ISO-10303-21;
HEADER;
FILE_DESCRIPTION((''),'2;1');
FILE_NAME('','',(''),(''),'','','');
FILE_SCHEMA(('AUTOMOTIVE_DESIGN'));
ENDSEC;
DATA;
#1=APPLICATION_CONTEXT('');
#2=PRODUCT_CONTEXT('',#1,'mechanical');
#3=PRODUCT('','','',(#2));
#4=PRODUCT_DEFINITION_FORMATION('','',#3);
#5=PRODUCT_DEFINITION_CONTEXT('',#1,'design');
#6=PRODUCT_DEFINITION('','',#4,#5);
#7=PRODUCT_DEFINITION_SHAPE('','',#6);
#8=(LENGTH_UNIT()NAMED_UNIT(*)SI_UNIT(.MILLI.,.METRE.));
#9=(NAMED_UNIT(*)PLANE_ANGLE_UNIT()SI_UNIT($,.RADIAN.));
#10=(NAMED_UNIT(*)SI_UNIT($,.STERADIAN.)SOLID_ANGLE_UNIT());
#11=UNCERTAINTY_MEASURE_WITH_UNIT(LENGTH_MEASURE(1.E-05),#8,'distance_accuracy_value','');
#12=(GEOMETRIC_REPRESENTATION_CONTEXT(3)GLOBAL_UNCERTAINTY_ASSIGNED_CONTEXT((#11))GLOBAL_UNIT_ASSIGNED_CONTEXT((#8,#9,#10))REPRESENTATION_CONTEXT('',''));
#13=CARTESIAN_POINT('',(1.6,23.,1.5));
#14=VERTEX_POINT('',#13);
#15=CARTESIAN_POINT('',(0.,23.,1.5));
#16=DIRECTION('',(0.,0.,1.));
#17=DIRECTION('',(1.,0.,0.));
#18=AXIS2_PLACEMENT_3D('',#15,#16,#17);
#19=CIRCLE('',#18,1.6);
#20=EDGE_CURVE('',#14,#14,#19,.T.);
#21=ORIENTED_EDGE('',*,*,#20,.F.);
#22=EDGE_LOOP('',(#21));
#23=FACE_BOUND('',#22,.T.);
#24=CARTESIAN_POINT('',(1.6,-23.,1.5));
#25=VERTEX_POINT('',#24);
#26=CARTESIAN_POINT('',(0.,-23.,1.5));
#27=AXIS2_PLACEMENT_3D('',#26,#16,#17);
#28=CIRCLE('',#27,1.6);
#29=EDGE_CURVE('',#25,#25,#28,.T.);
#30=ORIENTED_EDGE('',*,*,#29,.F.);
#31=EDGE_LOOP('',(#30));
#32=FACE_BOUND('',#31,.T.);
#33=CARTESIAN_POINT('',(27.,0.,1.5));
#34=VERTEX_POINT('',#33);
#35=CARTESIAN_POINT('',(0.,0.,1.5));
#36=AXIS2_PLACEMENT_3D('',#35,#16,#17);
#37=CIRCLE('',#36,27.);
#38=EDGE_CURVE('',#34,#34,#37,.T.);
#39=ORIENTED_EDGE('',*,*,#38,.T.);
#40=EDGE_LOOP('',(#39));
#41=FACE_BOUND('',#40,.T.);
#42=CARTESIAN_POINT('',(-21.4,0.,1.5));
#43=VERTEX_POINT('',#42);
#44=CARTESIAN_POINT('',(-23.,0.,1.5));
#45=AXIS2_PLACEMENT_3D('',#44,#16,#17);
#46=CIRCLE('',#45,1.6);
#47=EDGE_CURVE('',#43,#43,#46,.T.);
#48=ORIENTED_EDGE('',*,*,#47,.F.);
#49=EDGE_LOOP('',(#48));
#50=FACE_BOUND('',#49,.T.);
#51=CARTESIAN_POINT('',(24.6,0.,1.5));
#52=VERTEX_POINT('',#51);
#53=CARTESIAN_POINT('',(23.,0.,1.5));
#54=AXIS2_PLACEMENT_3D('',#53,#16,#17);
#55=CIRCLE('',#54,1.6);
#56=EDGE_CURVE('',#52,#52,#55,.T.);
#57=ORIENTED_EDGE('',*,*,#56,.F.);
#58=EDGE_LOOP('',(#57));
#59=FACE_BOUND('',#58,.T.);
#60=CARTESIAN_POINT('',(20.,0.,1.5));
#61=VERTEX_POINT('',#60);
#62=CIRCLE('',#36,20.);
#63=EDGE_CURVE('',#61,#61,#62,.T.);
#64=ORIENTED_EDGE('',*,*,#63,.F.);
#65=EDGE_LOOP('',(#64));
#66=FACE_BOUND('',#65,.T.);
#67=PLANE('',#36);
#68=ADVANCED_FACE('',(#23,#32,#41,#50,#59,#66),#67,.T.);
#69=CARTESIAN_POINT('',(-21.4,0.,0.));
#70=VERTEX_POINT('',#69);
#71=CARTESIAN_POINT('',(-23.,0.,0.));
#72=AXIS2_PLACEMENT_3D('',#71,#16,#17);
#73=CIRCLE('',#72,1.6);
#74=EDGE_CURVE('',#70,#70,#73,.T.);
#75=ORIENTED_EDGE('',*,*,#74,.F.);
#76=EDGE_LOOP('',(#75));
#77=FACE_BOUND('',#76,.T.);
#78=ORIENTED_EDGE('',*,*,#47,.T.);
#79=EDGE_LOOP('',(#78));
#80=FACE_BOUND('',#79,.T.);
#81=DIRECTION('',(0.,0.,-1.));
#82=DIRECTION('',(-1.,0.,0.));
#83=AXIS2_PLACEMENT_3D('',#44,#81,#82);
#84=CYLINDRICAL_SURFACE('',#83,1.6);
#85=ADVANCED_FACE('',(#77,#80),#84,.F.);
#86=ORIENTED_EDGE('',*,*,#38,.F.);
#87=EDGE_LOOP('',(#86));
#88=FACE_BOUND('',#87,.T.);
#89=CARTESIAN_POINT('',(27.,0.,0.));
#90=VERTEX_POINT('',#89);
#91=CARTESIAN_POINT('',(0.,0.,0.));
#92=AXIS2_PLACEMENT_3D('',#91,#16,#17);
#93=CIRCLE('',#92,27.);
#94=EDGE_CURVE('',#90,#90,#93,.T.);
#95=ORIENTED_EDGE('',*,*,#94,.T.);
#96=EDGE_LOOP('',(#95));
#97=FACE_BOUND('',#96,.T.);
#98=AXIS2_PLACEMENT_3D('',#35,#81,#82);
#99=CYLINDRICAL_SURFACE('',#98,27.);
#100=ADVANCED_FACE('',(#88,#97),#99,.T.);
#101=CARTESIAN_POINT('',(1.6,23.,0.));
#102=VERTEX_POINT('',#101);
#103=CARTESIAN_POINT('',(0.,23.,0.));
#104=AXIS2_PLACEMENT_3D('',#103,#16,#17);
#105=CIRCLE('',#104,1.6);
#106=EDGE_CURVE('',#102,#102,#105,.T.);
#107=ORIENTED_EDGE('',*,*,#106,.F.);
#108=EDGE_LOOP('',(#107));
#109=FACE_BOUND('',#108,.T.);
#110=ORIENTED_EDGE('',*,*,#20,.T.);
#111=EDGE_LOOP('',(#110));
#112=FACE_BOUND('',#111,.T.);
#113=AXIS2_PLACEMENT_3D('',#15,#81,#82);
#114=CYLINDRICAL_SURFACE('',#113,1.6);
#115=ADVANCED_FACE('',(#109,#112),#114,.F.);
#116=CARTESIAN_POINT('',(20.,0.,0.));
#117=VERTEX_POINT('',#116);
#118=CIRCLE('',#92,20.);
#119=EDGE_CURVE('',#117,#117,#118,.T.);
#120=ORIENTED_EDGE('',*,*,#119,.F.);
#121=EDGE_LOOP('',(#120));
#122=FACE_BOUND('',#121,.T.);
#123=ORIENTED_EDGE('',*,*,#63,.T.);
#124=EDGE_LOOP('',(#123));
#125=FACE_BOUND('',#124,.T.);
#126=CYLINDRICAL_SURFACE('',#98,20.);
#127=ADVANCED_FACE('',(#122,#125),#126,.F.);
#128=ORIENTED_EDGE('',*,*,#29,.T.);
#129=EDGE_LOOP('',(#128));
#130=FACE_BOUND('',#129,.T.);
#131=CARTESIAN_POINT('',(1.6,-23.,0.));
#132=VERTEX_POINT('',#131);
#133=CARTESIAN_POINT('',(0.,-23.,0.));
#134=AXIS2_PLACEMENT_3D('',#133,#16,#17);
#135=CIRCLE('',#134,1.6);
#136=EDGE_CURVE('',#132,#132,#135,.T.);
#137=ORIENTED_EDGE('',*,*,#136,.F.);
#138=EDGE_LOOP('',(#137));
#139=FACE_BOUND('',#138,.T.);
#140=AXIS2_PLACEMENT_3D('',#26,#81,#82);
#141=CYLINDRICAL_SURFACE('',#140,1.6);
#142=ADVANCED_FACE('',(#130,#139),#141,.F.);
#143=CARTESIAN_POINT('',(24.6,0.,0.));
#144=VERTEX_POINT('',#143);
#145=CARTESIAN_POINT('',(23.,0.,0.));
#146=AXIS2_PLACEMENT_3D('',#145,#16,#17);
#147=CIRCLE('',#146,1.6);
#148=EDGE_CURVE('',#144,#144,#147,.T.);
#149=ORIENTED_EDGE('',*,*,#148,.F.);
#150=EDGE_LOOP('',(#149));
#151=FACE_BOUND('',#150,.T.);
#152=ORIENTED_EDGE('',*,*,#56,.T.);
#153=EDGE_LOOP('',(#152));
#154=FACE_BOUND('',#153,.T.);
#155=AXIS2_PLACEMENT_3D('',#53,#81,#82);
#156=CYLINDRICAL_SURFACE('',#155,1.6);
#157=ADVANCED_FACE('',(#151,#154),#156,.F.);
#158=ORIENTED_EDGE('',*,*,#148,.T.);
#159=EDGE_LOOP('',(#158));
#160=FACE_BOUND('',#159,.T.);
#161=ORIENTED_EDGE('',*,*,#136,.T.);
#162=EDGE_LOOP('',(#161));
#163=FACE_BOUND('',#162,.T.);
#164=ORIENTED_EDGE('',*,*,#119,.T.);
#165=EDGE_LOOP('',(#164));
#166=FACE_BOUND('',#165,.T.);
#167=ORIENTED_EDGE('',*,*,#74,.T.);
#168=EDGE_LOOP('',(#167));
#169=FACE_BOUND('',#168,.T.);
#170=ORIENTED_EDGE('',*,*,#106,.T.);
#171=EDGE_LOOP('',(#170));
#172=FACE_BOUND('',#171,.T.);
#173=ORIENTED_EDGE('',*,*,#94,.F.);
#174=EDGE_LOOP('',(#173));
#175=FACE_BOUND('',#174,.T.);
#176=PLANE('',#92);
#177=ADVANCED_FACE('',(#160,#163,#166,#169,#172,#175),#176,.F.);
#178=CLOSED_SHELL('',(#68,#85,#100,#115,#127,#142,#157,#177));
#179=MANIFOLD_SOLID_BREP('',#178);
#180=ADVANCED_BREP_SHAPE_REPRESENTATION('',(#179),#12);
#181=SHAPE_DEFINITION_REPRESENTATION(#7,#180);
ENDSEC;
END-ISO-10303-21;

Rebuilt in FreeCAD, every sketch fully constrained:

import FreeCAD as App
import Part
import Sketcher
from FreeCAD import Vector
Q = App.Units.Quantity

doc = App.newDocument("Part")
params = doc.addObject("Spreadsheet::Sheet", "Params")
for row, (alias, value) in enumerate([
    ("sketch1_diameter", "54 mm"),
    ("sketch1_diameter2", "40 mm"),
    ("sketch1_diameter3", "3.2 mm"),
    ("pad1_length", "1.5 mm"),
], start=1):
    params.set(f"A{row}", alias)
    params.set(f"B{row}", "=" + value)
    params.setAlias(f"B{row}", alias)

body = doc.addObject("PartDesign::Body", "Body")

sketch1 = body.newObject("Sketcher::SketchObject", "Sketch")
sketch1.AttachmentSupport = (doc.getObject("XY_Plane"), [""])
sketch1.MapMode = "FlatFace"
sketch1.addGeometry([
    Part.Circle(Vector(0, 0, 0), Vector(0, 0, 1), 27),
    Part.Circle(Vector(0, -23, 0), Vector(0, 0, 1), 1.6),
    Part.Circle(Vector(-23, 0, 0), Vector(0, 0, 1), 1.6),
    Part.Circle(Vector(0, 0, 0), Vector(0, 0, 1), 20),
    Part.Circle(Vector(23, 0, 0), Vector(0, 0, 1), 1.6),
    Part.Circle(Vector(0, 23, 0), Vector(0, 0, 1), 1.6),
], False)
sketch1.addConstraint([
    Sketcher.Constraint("Coincident", 0, 3, -1, 1),
    Sketcher.Constraint("Coincident", 3, 3, -1, 1),
    Sketcher.Constraint("Equal", 1, 2),
    Sketcher.Constraint("Equal", 2, 4),
    Sketcher.Constraint("Equal", 4, 5),
    Sketcher.Constraint("Symmetric", 2, 3, 4, 3, -1, 1),
    Sketcher.Constraint("Symmetric", 1, 3, 5, 3, -1, 1),
    Sketcher.Constraint("PointOnObject", 1, 3, -2),
    Sketcher.Constraint("PointOnObject", 2, 3, -1),
    Sketcher.Constraint("Diameter", 0, Q("54 mm")),
    Sketcher.Constraint("Diameter", 3, Q("40 mm")),
    Sketcher.Constraint("Diameter", 1, Q("3.2 mm")),
    Sketcher.Constraint("DistanceY", 1, 3, -1, 1, Q("23 mm")),
    Sketcher.Constraint("DistanceX", 2, 3, -1, 1, Q("23 mm")),
])
sketch1.setExpression("Constraints[9]", "Params.sketch1_diameter")
sketch1.setExpression("Constraints[10]", "Params.sketch1_diameter2")
sketch1.setExpression("Constraints[11]", "Params.sketch1_diameter3")
pad1 = body.newObject("PartDesign::Pad", "Pad")
pad1.Profile = sketch1
pad1.setExpression("Length", "Params.pad1_length")

doc.recompute()
